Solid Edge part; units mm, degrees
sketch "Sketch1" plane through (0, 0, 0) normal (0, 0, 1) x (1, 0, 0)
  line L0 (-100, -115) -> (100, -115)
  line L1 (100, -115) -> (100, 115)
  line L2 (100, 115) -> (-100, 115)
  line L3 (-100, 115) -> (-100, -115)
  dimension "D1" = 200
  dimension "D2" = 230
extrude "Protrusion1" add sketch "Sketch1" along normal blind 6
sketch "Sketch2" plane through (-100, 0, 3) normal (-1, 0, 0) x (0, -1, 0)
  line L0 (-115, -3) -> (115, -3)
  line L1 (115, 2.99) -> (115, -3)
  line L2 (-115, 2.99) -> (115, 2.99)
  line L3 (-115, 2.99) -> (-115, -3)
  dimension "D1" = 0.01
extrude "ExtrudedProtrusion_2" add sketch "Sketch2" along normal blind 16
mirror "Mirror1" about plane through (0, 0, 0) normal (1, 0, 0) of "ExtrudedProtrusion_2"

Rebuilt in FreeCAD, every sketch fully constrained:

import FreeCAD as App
import Part
import Sketcher
from FreeCAD import Vector


def add_polygon(sketch, points):
    """Adds a closed chain of lines whose ends are joined by coincident constraints."""
    first, n = sketch.GeometryCount, len(points)
    for a, b in zip(points, points[1:] + points[:1]):
        sketch.addGeometry(Part.LineSegment(App.Vector(*a, 0), App.Vector(*b, 0)), False)
    for i in range(n):
        sketch.addConstraint(Sketcher.Constraint("Coincident", first + i, 2, first + (i + 1) % n, 1))

doc = App.newDocument("Part")
body = doc.addObject("PartDesign::Body", "Body")

sketch1 = body.newObject("Sketcher::SketchObject", "Sketch")
sketch1.AttachmentSupport = (doc.getObject("XY_Plane"), [""])
sketch1.MapMode = "FlatFace"
add_polygon(sketch1, [(-100, 115), (-100, -115), (100, -115), (100, 115)])
sketch1.addConstraint(Sketcher.Constraint("Vertical", 0))
sketch1.addConstraint(Sketcher.Constraint("Horizontal", 1))
sketch1.addConstraint(Sketcher.Constraint("Vertical", 2))
sketch1.addConstraint(Sketcher.Constraint("Horizontal", 3))
sketch1.addConstraint(Sketcher.Constraint("Symmetric", 0, 2, 2, 2, -1, 1))
sketch1.addConstraint(Sketcher.Constraint("DistanceX", 0, 2, -1, 1, 100.0))
sketch1.addConstraint(Sketcher.Constraint("DistanceY", 0, 2, 0, 1, 230.0))
pad1 = body.newObject("PartDesign::Pad", "Pad")
pad1.Profile = sketch1
pad1.Length = 6

sketch2 = body.newObject("Sketcher::SketchObject", "Sketch001")
sketch2.AttachmentSupport = (doc.getObject("YZ_Plane"), [""])
sketch2.MapMode = "FlatFace"
sketch2.AttachmentOffset = App.Placement(Vector(0, 0, -100), App.Rotation())
add_polygon(sketch2, [(115, 5.99), (115, 0), (-115, 0), (-115, 5.99)])
sketch2.addConstraint(Sketcher.Constraint("Vertical", 0))
sketch2.addConstraint(Sketcher.Constraint("Horizontal", 1))
sketch2.addConstraint(Sketcher.Constraint("Vertical", 2))
sketch2.addConstraint(Sketcher.Constraint("Horizontal", 3))
sketch2.addConstraint(Sketcher.Constraint("Symmetric", 0, 2, 1, 2, -1, 1))
sketch2.addConstraint(Sketcher.Constraint("DistanceX", 1, 2, 1, 1, 230.0))
sketch2.addConstraint(Sketcher.Constraint("DistanceY", 0, 2, 0, 1, 5.99))
pad2 = body.newObject("PartDesign::Pad", "Pad001")
pad2.Profile = sketch2
pad2.Length = 16
pad2.Reversed = True
doc.recompute()

mirrored = body.newObject("PartDesign::Mirrored", "Mirrored")
mirrored.Originals = [pad2]
mirrored.MirrorPlane = (doc.getObject("YZ_Plane"), [""])
body.Tip = mirrored

doc.recompute()
